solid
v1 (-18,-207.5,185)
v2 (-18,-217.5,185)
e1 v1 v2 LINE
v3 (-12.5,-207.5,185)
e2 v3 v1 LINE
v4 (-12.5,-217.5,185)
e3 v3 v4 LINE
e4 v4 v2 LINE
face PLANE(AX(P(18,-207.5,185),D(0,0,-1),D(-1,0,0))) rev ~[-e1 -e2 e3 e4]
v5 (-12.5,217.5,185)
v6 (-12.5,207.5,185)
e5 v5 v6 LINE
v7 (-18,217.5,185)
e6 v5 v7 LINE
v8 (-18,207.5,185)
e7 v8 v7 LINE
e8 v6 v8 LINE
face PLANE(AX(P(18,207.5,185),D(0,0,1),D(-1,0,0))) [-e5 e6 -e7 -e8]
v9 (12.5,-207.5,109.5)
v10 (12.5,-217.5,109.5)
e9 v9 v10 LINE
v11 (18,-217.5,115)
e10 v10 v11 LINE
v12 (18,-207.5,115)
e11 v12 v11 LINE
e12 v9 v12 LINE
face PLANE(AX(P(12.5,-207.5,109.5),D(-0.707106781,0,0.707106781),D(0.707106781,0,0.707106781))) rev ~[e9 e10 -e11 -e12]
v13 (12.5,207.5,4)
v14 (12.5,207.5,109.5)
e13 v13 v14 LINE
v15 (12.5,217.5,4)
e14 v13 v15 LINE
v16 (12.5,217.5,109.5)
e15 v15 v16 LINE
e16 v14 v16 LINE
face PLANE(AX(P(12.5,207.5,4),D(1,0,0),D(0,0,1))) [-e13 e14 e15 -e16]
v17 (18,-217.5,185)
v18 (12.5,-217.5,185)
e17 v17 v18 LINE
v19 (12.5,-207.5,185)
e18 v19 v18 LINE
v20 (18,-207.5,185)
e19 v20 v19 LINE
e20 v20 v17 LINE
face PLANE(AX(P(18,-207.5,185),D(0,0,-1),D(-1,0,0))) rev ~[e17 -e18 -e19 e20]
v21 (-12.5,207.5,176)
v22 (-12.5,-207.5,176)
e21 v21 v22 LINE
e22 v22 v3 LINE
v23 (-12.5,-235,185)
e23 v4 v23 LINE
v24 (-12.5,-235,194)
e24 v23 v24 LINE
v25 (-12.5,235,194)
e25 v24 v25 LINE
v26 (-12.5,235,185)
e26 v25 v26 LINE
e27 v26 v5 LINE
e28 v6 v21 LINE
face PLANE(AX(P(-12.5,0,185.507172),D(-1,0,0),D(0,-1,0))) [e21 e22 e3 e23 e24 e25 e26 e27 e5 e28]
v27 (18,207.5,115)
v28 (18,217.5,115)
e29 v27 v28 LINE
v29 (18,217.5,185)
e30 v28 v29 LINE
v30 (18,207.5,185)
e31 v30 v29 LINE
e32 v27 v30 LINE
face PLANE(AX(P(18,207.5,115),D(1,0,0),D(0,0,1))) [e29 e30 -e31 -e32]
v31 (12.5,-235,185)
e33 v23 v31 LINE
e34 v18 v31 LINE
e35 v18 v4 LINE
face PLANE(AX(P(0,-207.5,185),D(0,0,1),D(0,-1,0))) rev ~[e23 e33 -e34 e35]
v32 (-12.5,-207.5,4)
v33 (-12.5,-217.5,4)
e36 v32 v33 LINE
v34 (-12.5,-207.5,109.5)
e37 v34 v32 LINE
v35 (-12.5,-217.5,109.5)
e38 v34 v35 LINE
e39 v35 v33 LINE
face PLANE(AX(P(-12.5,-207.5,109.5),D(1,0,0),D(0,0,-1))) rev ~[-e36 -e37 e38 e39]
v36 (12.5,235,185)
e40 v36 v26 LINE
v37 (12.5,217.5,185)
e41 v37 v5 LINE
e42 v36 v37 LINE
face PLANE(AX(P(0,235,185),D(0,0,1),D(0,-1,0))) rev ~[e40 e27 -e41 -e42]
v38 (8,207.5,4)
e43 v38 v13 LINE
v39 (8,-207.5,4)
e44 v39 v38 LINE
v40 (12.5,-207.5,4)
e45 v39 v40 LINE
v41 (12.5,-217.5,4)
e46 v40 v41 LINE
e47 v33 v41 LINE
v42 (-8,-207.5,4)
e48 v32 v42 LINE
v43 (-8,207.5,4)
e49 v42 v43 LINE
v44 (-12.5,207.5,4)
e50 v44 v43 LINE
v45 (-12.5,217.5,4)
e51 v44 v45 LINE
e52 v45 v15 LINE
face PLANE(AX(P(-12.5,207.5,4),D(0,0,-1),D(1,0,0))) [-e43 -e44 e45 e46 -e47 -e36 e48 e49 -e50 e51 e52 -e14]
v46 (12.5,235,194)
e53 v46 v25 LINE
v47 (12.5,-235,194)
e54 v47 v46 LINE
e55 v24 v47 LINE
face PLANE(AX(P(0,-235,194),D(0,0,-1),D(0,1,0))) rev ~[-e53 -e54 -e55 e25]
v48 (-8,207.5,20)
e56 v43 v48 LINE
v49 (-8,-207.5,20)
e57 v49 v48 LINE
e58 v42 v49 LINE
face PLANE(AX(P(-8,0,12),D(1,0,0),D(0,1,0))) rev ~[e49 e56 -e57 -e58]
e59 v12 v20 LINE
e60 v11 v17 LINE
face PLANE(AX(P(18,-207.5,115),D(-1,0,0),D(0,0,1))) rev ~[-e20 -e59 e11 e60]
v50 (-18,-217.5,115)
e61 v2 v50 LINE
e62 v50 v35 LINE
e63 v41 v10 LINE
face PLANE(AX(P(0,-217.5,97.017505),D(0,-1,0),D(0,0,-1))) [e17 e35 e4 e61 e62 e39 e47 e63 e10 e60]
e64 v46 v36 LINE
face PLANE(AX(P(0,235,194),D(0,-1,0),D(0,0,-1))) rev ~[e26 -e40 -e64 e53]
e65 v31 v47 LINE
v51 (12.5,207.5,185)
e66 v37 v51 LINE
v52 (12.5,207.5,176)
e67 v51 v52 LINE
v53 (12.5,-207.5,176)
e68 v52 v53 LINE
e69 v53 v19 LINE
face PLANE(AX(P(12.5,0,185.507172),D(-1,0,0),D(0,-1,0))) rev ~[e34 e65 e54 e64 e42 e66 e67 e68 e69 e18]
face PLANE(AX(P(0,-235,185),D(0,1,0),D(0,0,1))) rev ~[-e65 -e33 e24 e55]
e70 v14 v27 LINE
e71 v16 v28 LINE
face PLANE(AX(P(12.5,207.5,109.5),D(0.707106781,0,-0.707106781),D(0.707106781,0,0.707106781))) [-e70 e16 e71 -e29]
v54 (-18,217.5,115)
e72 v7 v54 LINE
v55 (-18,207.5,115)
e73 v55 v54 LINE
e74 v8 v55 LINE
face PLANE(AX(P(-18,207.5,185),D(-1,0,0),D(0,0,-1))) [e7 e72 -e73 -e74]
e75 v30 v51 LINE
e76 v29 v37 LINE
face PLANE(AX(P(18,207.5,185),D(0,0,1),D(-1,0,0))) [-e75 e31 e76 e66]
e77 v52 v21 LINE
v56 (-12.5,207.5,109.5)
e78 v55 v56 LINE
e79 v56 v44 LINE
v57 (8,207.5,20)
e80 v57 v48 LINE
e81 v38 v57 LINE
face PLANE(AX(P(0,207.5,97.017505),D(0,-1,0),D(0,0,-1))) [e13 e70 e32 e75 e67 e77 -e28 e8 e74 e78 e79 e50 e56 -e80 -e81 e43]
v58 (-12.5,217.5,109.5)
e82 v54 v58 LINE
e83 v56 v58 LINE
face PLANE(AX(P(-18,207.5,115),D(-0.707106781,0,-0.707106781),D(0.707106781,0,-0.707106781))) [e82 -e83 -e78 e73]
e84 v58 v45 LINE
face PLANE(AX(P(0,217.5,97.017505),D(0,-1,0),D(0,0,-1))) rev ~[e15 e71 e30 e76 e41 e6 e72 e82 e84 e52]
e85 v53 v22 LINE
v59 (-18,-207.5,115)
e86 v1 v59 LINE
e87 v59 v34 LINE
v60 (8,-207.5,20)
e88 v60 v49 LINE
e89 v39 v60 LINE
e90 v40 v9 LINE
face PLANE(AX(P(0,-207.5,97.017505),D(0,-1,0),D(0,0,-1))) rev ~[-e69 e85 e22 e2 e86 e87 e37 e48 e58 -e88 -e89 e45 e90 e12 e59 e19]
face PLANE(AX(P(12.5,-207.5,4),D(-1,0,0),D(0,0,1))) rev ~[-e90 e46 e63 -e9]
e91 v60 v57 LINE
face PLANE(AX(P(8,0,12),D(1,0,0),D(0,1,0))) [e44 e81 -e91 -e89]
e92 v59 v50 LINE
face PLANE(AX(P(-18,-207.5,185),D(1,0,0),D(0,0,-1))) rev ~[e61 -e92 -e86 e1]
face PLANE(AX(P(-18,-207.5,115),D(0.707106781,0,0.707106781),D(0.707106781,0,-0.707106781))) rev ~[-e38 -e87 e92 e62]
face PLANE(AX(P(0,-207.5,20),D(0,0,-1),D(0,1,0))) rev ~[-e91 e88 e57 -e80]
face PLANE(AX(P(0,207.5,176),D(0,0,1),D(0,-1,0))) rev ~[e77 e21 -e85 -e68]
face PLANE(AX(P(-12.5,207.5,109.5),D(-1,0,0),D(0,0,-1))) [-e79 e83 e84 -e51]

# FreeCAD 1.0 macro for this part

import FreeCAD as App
import Part
import Sketcher

V = App.Vector
Q = App.Units.Quantity


def add_polygon(sketch, points):
    """Adds a closed chain of lines whose ends are joined by coincident constraints."""
    first, n = sketch.GeometryCount, len(points)
    for a, b in zip(points, points[1:] + points[:1]):
        sketch.addGeometry(Part.LineSegment(App.Vector(*a, 0), App.Vector(*b, 0)), False)
    for i in range(n):
        sketch.addConstraint(Sketcher.Constraint("Coincident", first + i, 2, first + (i + 1) % n, 1))

doc = App.newDocument("Part")
params = doc.addObject("Spreadsheet::Sheet", "Params")
for row, (alias, value) in enumerate([
    ("sketch1_width", "470 mm"),
    ("sketch1_width2", "415 mm"),
    ("sketch1_height", "9 mm"),
    ("pad1_length", "25 mm"),
    ("sketch2_width", "36 mm"),
    ("sketch2_width2", "25 mm"),
    ("sketch2_height", "70 mm"),
    ("sketch2_height2", "105.5 mm"),
    ("pad2_length", "10 mm"),
    ("sketch3_width", "25 mm"),
    ("sketch3_width2", "36 mm"),
    ("sketch3_height", "70 mm"),
    ("sketch3_height2", "105.5 mm"),
    ("pad3_length", "10 mm"),
    ("sketch4_width", "415 mm"),
    ("sketch4_height", "16 mm"),
    ("pad4_length", "16 mm"),
], start=1):
    params.set(f"A{row}", alias)
    params.set(f"B{row}", "=" + value)
    params.setAlias(f"B{row}", alias)

body = doc.addObject("PartDesign::Body", "Body")

# Sketch on YZ plane
sketch1 = body.newObject("Sketcher::SketchObject", "Sketch")
sketch1.AttachmentSupport = (doc.getObject("YZ_Plane"), [""])
sketch1.MapMode = "FlatFace"
add_polygon(sketch1, [(235, 194), (-235, 194), (-235, 185), (-207.5, 185), (-207.5, 176), (207.5, 176), (207.5, 185), (235, 185)])  # lines 0-7
sketch1.addConstraint(Sketcher.Constraint("Horizontal", 0))
sketch1.addConstraint(Sketcher.Constraint("Vertical", 1))
sketch1.addConstraint(Sketcher.Constraint("Horizontal", 2))
sketch1.addConstraint(Sketcher.Constraint("Vertical", 3))
sketch1.addConstraint(Sketcher.Constraint("Horizontal", 4))
sketch1.addConstraint(Sketcher.Constraint("Vertical", 5))
sketch1.addConstraint(Sketcher.Constraint("Horizontal", 6))
sketch1.addConstraint(Sketcher.Constraint("Vertical", 7))
sketch1.addConstraint(Sketcher.Constraint("Symmetric", 2, 2, 5, 2, -2))
sketch1.addConstraint(Sketcher.Constraint("Equal", 2, 6))
sketch1.addConstraint(Sketcher.Constraint("Equal", 1, 3))
sketch1.addConstraint(Sketcher.Constraint("DistanceX", 0, 2, 0, 1, Q("470 mm")))
sketch1.addConstraint(Sketcher.Constraint("DistanceX", 4, 1, 4, 2, Q("415 mm")))
sketch1.addConstraint(Sketcher.Constraint("DistanceY", 1, 2, 1, 1, Q("9 mm")))
sketch1.addConstraint(Sketcher.Constraint("DistanceY", -1, 1, 0, 2, Q("194 mm")))
sketch1.setExpression("Constraints[19]", "Params.sketch1_width")
sketch1.setExpression("Constraints[20]", "Params.sketch1_width2")
sketch1.setExpression("Constraints[21]", "Params.sketch1_height")
pad1 = body.newObject("PartDesign::Pad", "Pad")
pad1.Profile = sketch1
pad1.setExpression("Length", "Params.pad1_length")
pad1.Midplane = True

# Sketch on XZ plane
sketch2 = body.newObject("Sketcher::SketchObject", "Sketch001")
sketch2.AttachmentSupport = (doc.getObject("XZ_Plane"), [""])
sketch2.MapMode = "FlatFace"
sketch2.AttachmentOffset = App.Placement(V(0, 0, 207.5), App.Rotation())
add_polygon(sketch2, [(18, 185), (-18, 185), (-18, 115), (-12.5, 109.5), (-12.5, 4), (12.5, 4), (12.5, 109.5), (18, 115)])  # lines 0-7
sketch2.addConstraint(Sketcher.Constraint("Horizontal", 0))
sketch2.addConstraint(Sketcher.Constraint("Vertical", 1))
sketch2.addConstraint(Sketcher.Constraint("Vertical", 3))
sketch2.addConstraint(Sketcher.Constraint("Horizontal", 4))
sketch2.addConstraint(Sketcher.Constraint("Vertical", 5))
sketch2.addConstraint(Sketcher.Constraint("Vertical", 7))
sketch2.addConstraint(Sketcher.Constraint("Symmetric", 2, 2, 5, 2, -2))
sketch2.addConstraint(Sketcher.Constraint("Symmetric", 1, 2, 6, 2, -2))
sketch2.addConstraint(Sketcher.Constraint("Perpendicular", 2, 6))
sketch2.addConstraint(Sketcher.Constraint("DistanceX", 0, 2, 0, 1, Q("36 mm")))
sketch2.addConstraint(Sketcher.Constraint("DistanceX", 4, 1, 4, 2, Q("25 mm")))
sketch2.addConstraint(Sketcher.Constraint("DistanceY", 1, 2, 1, 1, Q("70 mm")))
sketch2.addConstraint(Sketcher.Constraint("DistanceY", 3, 2, 3, 1, Q("105.5 mm")))
sketch2.addConstraint(Sketcher.Constraint("DistanceY", -1, 1, 0, 2, Q("185 mm")))
sketch2.setExpression("Constraints[17]", "Params.sketch2_width")
sketch2.setExpression("Constraints[18]", "Params.sketch2_width2")
sketch2.setExpression("Constraints[19]", "Params.sketch2_height")
sketch2.setExpression("Constraints[20]", "Params.sketch2_height2")
pad2 = body.newObject("PartDesign::Pad", "Pad001")
pad2.Profile = sketch2
pad2.setExpression("Length", "Params.pad2_length")

# Sketch on XZ plane
sketch3 = body.newObject("Sketcher::SketchObject", "Sketch002")
sketch3.AttachmentSupport = (doc.getObject("XZ_Plane"), [""])
sketch3.MapMode = "FlatFace"
sketch3.AttachmentOffset = App.Placement(V(0, 0, -207.5), App.Rotation())
add_polygon(sketch3, [(12.5, 109.5), (12.5, 4), (-12.5, 4), (-12.5, 109.5), (-18, 115), (-18, 185), (18, 185), (18, 115)])  # lines 0-7
sketch3.addConstraint(Sketcher.Constraint("Vertical", 0))
sketch3.addConstraint(Sketcher.Constraint("Horizontal", 1))
sketch3.addConstraint(Sketcher.Constraint("Vertical", 2))
sketch3.addConstraint(Sketcher.Constraint("Vertical", 4))
sketch3.addConstraint(Sketcher.Constraint("Horizontal", 5))
sketch3.addConstraint(Sketcher.Constraint("Vertical", 6))
sketch3.addConstraint(Sketcher.Constraint("Symmetric", 3, 2, 6, 2, -2))
sketch3.addConstraint(Sketcher.Constraint("Symmetric", 2, 2, 7, 2, -2))
sketch3.addConstraint(Sketcher.Constraint("Perpendicular", 3, 7))
sketch3.addConstraint(Sketcher.Constraint("DistanceX", 1, 2, 1, 1, Q("25 mm")))
sketch3.addConstraint(Sketcher.Constraint("DistanceX", 5, 1, 5, 2, Q("36 mm")))
sketch3.addConstraint(Sketcher.Constraint("DistanceY", 4, 1, 4, 2, Q("70 mm")))
sketch3.addConstraint(Sketcher.Constraint("DistanceY", 0, 2, 0, 1, Q("105.5 mm")))
sketch3.addConstraint(Sketcher.Constraint("DistanceY", -1, 1, 0, 2, Q("4 mm")))
sketch3.setExpression("Constraints[17]", "Params.sketch3_width")
sketch3.setExpression("Constraints[18]", "Params.sketch3_width2")
sketch3.setExpression("Constraints[19]", "Params.sketch3_height")
sketch3.setExpression("Constraints[20]", "Params.sketch3_height2")
pad3 = body.newObject("PartDesign::Pad", "Pad002")
pad3.Profile = sketch3
pad3.setExpression("Length", "Params.pad3_length")
pad3.Reversed = True

# Sketch on YZ plane
sketch4 = body.newObject("Sketcher::SketchObject", "Sketch003")
sketch4.AttachmentSupport = (doc.getObject("YZ_Plane"), [""])
sketch4.MapMode = "FlatFace"
add_polygon(sketch4, [(-207.5, 20), (-207.5, 4), (207.5, 4), (207.5, 20)])  # lines 0-3
sketch4.addConstraint(Sketcher.Constraint("Vertical", 0))
sketch4.addConstraint(Sketcher.Constraint("Horizontal", 1))
sketch4.addConstraint(Sketcher.Constraint("Vertical", 2))
sketch4.addConstraint(Sketcher.Constraint("Horizontal", 3))
sketch4.addConstraint(Sketcher.Constraint("DistanceX", 1, 1, 1, 2, Q("415 mm")))
sketch4.addConstraint(Sketcher.Constraint("DistanceY", 0, 2, 0, 1, Q("16 mm")))
sketch4.addConstraint(Sketcher.Constraint("DistanceY", -1, 1, 0, 2, Q("4 mm")))
sketch4.addConstraint(Sketcher.Constraint("DistanceX", 0, 2, -1, 1, Q("207.5 mm")))
sketch4.setExpression("Constraints[8]", "Params.sketch4_width")
sketch4.setExpression("Constraints[9]", "Params.sketch4_height")
pad4 = body.newObject("PartDesign::Pad", "Pad003")
pad4.Profile = sketch4
pad4.setExpression("Length", "Params.pad4_length")
pad4.Midplane = True

doc.recompute()
